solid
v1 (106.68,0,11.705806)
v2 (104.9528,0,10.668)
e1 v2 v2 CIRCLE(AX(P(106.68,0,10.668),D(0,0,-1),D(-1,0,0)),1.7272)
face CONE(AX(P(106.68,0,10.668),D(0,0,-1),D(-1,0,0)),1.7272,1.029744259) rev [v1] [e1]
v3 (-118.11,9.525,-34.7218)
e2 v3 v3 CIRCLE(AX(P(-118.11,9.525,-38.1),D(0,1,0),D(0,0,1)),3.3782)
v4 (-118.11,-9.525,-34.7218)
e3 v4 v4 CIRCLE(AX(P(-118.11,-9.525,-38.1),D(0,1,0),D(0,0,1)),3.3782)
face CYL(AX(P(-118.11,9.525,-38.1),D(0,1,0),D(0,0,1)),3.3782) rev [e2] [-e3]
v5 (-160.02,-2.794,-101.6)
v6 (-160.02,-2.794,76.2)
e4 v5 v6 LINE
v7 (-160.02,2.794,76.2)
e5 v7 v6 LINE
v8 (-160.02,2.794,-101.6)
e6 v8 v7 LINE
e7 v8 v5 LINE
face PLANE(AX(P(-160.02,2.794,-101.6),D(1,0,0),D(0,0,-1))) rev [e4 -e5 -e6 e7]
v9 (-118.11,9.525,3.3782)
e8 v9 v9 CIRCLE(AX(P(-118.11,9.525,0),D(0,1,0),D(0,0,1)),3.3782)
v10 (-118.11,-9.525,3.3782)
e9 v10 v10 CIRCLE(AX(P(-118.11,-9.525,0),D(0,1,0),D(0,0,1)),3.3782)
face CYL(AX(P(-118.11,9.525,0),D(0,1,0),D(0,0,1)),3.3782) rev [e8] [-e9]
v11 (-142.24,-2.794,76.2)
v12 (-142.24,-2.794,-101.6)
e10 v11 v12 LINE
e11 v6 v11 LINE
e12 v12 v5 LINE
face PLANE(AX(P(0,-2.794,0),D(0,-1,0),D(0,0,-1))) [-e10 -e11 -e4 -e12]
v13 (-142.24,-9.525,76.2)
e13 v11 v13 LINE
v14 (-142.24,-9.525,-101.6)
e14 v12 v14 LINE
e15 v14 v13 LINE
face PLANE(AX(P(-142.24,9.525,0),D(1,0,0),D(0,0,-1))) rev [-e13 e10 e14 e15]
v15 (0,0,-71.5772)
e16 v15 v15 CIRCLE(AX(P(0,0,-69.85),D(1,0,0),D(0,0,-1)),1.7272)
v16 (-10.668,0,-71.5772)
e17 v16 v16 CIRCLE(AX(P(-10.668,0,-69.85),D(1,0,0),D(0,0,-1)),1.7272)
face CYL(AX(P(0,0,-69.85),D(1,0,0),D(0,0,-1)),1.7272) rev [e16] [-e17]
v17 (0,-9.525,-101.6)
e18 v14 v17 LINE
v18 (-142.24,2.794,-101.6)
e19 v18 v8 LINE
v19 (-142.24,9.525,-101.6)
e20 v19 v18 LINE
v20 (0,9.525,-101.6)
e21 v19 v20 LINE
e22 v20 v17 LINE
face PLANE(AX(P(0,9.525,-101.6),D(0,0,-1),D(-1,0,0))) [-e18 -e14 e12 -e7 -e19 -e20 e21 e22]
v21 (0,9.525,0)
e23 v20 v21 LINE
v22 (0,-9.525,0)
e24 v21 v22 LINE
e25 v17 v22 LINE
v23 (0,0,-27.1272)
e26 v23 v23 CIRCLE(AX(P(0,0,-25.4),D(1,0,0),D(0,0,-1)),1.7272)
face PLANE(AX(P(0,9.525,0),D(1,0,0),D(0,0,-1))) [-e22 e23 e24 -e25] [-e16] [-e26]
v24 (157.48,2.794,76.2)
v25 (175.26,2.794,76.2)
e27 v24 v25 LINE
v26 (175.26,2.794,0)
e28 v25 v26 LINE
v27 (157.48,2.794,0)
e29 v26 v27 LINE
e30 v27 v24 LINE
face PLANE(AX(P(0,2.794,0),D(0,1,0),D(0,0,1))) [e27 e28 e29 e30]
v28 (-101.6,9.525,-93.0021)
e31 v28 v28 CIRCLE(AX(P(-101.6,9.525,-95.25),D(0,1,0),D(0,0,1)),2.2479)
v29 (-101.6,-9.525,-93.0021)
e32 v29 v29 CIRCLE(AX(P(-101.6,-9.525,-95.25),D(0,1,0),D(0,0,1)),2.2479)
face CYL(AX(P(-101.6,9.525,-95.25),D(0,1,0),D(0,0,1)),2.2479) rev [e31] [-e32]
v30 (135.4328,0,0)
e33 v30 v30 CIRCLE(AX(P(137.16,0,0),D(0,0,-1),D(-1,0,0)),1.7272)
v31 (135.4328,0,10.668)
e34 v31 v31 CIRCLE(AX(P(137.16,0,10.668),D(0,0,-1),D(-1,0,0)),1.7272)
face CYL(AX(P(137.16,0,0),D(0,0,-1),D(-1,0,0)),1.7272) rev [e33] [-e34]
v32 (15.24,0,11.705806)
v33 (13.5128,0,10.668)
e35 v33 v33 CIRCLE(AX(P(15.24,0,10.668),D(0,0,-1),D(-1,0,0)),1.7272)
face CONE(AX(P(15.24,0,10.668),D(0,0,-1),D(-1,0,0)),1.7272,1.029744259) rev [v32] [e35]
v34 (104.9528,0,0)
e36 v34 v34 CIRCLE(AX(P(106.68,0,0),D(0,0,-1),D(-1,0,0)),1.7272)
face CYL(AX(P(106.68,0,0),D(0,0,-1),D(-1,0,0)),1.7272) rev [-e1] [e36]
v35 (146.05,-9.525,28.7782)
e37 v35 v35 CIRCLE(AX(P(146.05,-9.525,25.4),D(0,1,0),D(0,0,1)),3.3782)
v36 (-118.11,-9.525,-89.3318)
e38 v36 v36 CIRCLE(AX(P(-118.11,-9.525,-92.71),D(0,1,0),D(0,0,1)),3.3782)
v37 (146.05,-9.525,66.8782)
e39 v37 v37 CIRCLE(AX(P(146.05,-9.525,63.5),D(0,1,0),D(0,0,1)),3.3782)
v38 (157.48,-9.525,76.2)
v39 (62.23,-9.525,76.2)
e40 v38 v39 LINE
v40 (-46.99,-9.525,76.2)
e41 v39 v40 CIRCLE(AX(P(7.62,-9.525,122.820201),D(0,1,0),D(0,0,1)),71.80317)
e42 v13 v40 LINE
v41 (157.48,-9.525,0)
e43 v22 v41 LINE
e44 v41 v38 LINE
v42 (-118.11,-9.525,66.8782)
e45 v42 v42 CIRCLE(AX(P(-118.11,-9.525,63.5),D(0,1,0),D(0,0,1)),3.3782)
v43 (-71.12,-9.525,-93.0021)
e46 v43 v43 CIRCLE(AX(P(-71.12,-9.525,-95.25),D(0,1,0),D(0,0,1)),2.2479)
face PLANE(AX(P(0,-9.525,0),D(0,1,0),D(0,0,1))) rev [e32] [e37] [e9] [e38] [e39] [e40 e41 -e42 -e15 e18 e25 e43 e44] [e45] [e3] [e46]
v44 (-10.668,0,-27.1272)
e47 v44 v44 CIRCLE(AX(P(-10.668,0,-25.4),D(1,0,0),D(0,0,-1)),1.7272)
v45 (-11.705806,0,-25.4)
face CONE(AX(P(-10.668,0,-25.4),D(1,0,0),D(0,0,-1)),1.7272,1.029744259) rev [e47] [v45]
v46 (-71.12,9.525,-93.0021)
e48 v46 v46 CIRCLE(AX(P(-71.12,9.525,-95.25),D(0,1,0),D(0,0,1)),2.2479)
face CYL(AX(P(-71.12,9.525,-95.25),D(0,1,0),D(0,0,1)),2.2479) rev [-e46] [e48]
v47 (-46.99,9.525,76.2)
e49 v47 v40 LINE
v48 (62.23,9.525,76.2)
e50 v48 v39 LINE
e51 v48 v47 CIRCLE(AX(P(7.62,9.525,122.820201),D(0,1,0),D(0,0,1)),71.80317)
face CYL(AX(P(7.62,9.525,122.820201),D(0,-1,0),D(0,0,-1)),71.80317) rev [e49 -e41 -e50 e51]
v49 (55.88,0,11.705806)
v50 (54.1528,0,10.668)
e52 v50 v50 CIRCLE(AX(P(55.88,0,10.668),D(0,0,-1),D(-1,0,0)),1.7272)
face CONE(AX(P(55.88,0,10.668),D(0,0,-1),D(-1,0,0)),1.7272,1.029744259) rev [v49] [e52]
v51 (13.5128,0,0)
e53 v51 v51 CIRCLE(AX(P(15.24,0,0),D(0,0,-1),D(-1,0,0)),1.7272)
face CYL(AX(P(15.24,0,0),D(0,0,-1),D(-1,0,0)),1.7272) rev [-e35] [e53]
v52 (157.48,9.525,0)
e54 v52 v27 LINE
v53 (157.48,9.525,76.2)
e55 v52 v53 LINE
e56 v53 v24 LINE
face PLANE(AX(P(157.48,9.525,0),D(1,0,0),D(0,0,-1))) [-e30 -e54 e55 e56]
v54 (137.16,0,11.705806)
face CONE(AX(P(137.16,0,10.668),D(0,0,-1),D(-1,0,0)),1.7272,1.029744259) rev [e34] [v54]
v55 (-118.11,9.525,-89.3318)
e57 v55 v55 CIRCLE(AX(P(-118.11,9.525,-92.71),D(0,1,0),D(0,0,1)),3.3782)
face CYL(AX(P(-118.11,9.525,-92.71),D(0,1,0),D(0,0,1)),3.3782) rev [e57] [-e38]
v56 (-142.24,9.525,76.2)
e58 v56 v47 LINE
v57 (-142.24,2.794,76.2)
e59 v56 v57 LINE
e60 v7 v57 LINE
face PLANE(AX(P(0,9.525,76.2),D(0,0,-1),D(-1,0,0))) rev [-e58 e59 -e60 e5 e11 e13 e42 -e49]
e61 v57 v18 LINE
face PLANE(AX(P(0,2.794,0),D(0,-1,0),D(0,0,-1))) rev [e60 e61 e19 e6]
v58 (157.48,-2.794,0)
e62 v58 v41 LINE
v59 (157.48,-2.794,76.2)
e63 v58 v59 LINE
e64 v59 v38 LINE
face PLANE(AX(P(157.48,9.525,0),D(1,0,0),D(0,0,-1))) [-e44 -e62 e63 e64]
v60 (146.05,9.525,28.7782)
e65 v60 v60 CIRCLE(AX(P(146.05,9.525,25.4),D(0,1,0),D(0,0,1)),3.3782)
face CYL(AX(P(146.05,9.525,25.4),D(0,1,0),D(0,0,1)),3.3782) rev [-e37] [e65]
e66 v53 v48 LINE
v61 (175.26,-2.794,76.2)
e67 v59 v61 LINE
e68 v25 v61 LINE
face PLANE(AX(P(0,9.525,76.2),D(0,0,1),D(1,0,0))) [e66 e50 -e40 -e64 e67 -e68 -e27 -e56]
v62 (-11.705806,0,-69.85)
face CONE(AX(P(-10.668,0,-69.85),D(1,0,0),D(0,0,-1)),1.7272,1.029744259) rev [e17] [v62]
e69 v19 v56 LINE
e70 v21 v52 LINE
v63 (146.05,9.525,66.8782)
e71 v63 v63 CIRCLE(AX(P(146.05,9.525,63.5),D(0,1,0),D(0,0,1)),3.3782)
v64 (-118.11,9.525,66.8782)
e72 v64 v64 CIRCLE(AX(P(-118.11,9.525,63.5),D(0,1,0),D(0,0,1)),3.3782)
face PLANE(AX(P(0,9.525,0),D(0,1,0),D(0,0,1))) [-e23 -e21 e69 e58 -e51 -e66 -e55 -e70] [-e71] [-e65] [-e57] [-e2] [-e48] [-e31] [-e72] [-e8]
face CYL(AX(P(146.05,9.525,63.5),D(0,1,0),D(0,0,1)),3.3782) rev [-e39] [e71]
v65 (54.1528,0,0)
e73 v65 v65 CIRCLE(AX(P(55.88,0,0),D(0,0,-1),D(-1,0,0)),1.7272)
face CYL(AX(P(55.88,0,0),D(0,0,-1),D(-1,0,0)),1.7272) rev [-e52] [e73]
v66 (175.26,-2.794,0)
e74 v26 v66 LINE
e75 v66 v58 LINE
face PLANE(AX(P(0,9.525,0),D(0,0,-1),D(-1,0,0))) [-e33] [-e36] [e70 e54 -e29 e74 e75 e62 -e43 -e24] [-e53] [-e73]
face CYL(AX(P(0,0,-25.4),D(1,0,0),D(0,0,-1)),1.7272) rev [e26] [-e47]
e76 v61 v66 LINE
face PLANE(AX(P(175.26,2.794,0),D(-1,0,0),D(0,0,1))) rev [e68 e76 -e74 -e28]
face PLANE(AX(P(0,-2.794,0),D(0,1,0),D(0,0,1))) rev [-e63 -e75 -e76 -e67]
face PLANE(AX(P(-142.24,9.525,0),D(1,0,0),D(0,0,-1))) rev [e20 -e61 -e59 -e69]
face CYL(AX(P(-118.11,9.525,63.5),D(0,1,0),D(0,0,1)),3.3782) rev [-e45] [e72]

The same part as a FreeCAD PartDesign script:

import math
import FreeCAD as App
import Part
import Sketcher
Q = App.Units.Quantity


def add_polygon(sketch, points):
    """Adds a closed chain of lines whose ends are joined by coincident constraints."""
    first, n = sketch.GeometryCount, len(points)
    for a, b in zip(points, points[1:] + points[:1]):
        sketch.addGeometry(Part.LineSegment(App.Vector(*a, 0), App.Vector(*b, 0)), False)
    for i in range(n):
        sketch.addConstraint(Sketcher.Constraint("Coincident", first + i, 2, first + (i + 1) % n, 1))

doc = App.newDocument("Part")
body = doc.addObject("PartDesign::Body", "Body")

sketch1 = body.newObject("Sketcher::SketchObject", "Sketch")
sketch1.AttachmentSupport = (doc.getObject("XZ_Plane"), [""])
sketch1.MapMode = "FlatFace"
sketch1.addGeometry(Part.LineSegment(App.Vector(0, -101.6, 0), App.Vector(-142.24, -101.6, 0)), False)
sketch1.addGeometry(Part.LineSegment(App.Vector(-142.24, -101.6, 0), App.Vector(-142.24, 76.2, 0)), False)
sketch1.addGeometry(Part.LineSegment(App.Vector(-142.24, 76.2, 0), App.Vector(-46.99, 76.2, 0)), False)
sketch1.addGeometry(Part.ArcOfCircle(Part.Circle(App.Vector(7.62, 122.820201, 0), App.Vector(0, 0, 1), 71.80317), math.radians(-139.51283), math.radians(-40.48717)), False)
sketch1.addGeometry(Part.LineSegment(App.Vector(62.23, 76.2, 0), App.Vector(157.48, 76.2, 0)), False)
sketch1.addGeometry(Part.LineSegment(App.Vector(157.48, 76.2, 0), App.Vector(157.48, 0, 0)), False)
sketch1.addGeometry(Part.LineSegment(App.Vector(157.48, 0, 0), App.Vector(0, 0, 0)), False)
sketch1.addGeometry(Part.LineSegment(App.Vector(0, 0, 0), App.Vector(0, -101.6, 0)), False)
sketch1.addConstraint(Sketcher.Constraint("Coincident", 0, 2, 1, 1))
sketch1.addConstraint(Sketcher.Constraint("Coincident", 1, 2, 2, 1))
sketch1.addConstraint(Sketcher.Constraint("Coincident", 2, 2, 3, 1))
sketch1.addConstraint(Sketcher.Constraint("Coincident", 3, 2, 4, 1))
sketch1.addConstraint(Sketcher.Constraint("Coincident", 4, 2, 5, 1))
sketch1.addConstraint(Sketcher.Constraint("Coincident", 5, 2, 6, 1))
sketch1.addConstraint(Sketcher.Constraint("Coincident", 6, 2, 7, 1))
sketch1.addConstraint(Sketcher.Constraint("Coincident", 7, 2, 0, 1))
sketch1.addConstraint(Sketcher.Constraint("Horizontal", 0))
sketch1.addConstraint(Sketcher.Constraint("Vertical", 1))
sketch1.addConstraint(Sketcher.Constraint("Horizontal", 2))
sketch1.addConstraint(Sketcher.Constraint("Horizontal", 4))
sketch1.addConstraint(Sketcher.Constraint("Vertical", 5))
sketch1.addConstraint(Sketcher.Constraint("Horizontal", 6))
sketch1.addConstraint(Sketcher.Constraint("Vertical", 7))
sketch1.addConstraint(Sketcher.Constraint("Coincident", 6, 2, -1, 1))
sketch1.addConstraint(Sketcher.Constraint("Horizontal", 2, 2, 3, 2))
sketch1.addConstraint(Sketcher.Constraint("Equal", 2, 4))
sketch1.addConstraint(Sketcher.Constraint("DistanceY", 1, 1, 1, 2, Q("7 in")))
sketch1.addConstraint(Sketcher.Constraint("DistanceY", 5, 2, 5, 1, Q("3 in")))
sketch1.addConstraint(Sketcher.Constraint("DistanceX", 0, 2, 0, 1, Q("5.6 in")))
sketch1.addConstraint(Sketcher.Constraint("DistanceX", 6, 2, 6, 1, Q("6.2 in")))
sketch1.addConstraint(Sketcher.Constraint("DistanceX", 2, 1, 2, 2, Q("3.75 in")))
sketch1.addConstraint(Sketcher.Constraint("Radius", 3, 71.80317))
pad1 = body.newObject("PartDesign::Pad", "Pad")
pad1.Profile = sketch1
pad1.Length = Q("0.75 in")
pad1.Midplane = True

sketch2 = body.newObject("Sketcher::SketchObject", "Sketch001")
sketch2.AttachmentSupport = (doc.getObject("XZ_Plane"), [""])
sketch2.MapMode = "FlatFace"
add_polygon(sketch2, [(-160.02, -101.6), (-160.02, 76.2), (-142.24, 76.2), (-142.24, -101.6)])
add_polygon(sketch2, [(157.48, 0), (157.48, 76.2), (175.26, 76.2), (175.26, 0)])
sketch2.addConstraint(Sketcher.Constraint("Vertical", 0))
sketch2.addConstraint(Sketcher.Constraint("Horizontal", 1))
sketch2.addConstraint(Sketcher.Constraint("Vertical", 2))
sketch2.addConstraint(Sketcher.Constraint("Horizontal", 3))
sketch2.addConstraint(Sketcher.Constraint("Vertical", 4))
sketch2.addConstraint(Sketcher.Constraint("Horizontal", 5))
sketch2.addConstraint(Sketcher.Constraint("Vertical", 6))
sketch2.addConstraint(Sketcher.Constraint("Horizontal", 7))
sketch2.addConstraint(Sketcher.Constraint("PointOnObject", 6, 2, -1))
sketch2.addConstraint(Sketcher.Constraint("Horizontal", 1, 2, 4, 2))
sketch2.addConstraint(Sketcher.Constraint("Equal", 3, 5))
sketch2.addConstraint(Sketcher.Constraint("DistanceY", 0, 1, 0, 2, Q("7 in")))
sketch2.addConstraint(Sketcher.Constraint("DistanceY", 4, 1, 4, 2, Q("3 in")))
sketch2.addConstraint(Sketcher.Constraint("DistanceX", 1, 1, 1, 2, Q("0.7 in")))
sketch2.addConstraint(Sketcher.Constraint("DistanceX", 0, 2, -1, 1, Q("6.3 in")))
sketch2.addConstraint(Sketcher.Constraint("DistanceX", -1, 1, 4, 2, Q("6.2 in")))
pad2 = body.newObject("PartDesign::Pad", "Pad001")
pad2.Profile = sketch2
pad2.Length = Q("0.22 in")
pad2.Midplane = True

sketch3 = body.newObject("Sketcher::SketchObject", "Sketch002")
sketch3.AttachmentSupport = (doc.getObject("XZ_Plane"), [""])
sketch3.MapMode = "FlatFace"
sketch3.AttachmentOffset = App.Placement(App.Vector(0, 0, -0.375 * 25.4), App.Rotation())
sketch3.addGeometry(Part.Circle(App.Vector(-118.11, -92.71, 0), App.Vector(0, 0, 1), 3.3782), False)
sketch3.addGeometry(Part.Circle(App.Vector(-118.11, -38.1, 0), App.Vector(0, 0, 1), 3.3782), False)
sketch3.addGeometry(Part.Circle(App.Vector(-118.11, 0, 0), App.Vector(0, 0, 1), 3.3782), False)
sketch3.addGeometry(Part.Circle(App.Vector(-118.11, 63.5, 0), App.Vector(0, 0, 1), 3.3782), False)
sketch3.addConstraint(Sketcher.Constraint("Equal", 0, 1))
sketch3.addConstraint(Sketcher.Constraint("Equal", 1, 2))
sketch3.addConstraint(Sketcher.Constraint("Equal", 2, 3))
sketch3.addConstraint(Sketcher.Constraint("PointOnObject", 2, 3, -1))
sketch3.addConstraint(Sketcher.Constraint("Vertical", 0, 3, 1, 3))
sketch3.addConstraint(Sketcher.Constraint("Vertical", 1, 3, 2, 3))
sketch3.addConstraint(Sketcher.Constraint("Vertical", 2, 3, 3, 3))
sketch3.addConstraint(Sketcher.Constraint("Diameter", 0, Q("0.266 in")))
sketch3.addConstraint(Sketcher.Constraint("DistanceY", 1, 3, 3, 3, Q("4 in")))
sketch3.addConstraint(Sketcher.Constraint("DistanceY", 1, 3, -1, 1, Q("1.5 in")))
sketch3.addConstraint(Sketcher.Constraint("DistanceX", 0, 3, -1, 1, Q("4.65 in")))
sketch3.addConstraint(Sketcher.Constraint("DistanceY", 0, 3, -1, 1, Q("3.65 in")))
doc.recompute()
hole = body.newObject("PartDesign::Hole", "Hole")
hole.Profile = sketch3
hole.ThreadType = "None"
hole.Diameter = Q("0.266 in")
hole.DepthType = "ThroughAll"
hole.Reversed = True

sketch4 = body.newObject("Sketcher::SketchObject", "Sketch003")
sketch4.AttachmentSupport = (doc.getObject("XZ_Plane"), [""])
sketch4.MapMode = "FlatFace"
sketch4.AttachmentOffset = App.Placement(App.Vector(0, 0, -0.375 * 25.4), App.Rotation())
sketch4.addGeometry(Part.Circle(App.Vector(-101.6, -95.25, 0), App.Vector(0, 0, 1), 2.2479), False)
sketch4.addGeometry(Part.Circle(App.Vector(-71.12, -95.25, 0), App.Vector(0, 0, 1), 2.2479), False)
sketch4.addConstraint(Sketcher.Constraint("Equal", 0, 1))
sketch4.addConstraint(Sketcher.Constraint("Horizontal", 0, 3, 1, 3))
sketch4.addConstraint(Sketcher.Constraint("Diameter", 0, Q("0.177 in")))
sketch4.addConstraint(Sketcher.Constraint("DistanceX", 0, 3, -1, 1, Q("4 in")))
sketch4.addConstraint(Sketcher.Constraint("DistanceX", 1, 3, -1, 1, Q("2.8 in")))
sketch4.addConstraint(Sketcher.Constraint("DistanceY", 0, 3, -1, 1, Q("3.75 in")))
doc.recompute()
hole2 = body.newObject("PartDesign::Hole", "Hole001")
hole2.Profile = sketch4
hole2.ThreadType = "None"
hole2.Diameter = Q("0.177 in")
hole2.DepthType = "ThroughAll"
hole2.Reversed = True

sketch5 = body.newObject("Sketcher::SketchObject", "Sketch004")
sketch5.AttachmentSupport = (doc.getObject("XZ_Plane"), [""])
sketch5.MapMode = "FlatFace"
sketch5.AttachmentOffset = App.Placement(App.Vector(0, 0, -0.375 * 25.4), App.Rotation())
sketch5.addGeometry(Part.Circle(App.Vector(146.05, 25.4, 0), App.Vector(0, 0, 1), 3.3782), False)
sketch5.addGeometry(Part.Circle(App.Vector(146.05, 63.5, 0), App.Vector(0, 0, 1), 3.3782), False)
sketch5.addConstraint(Sketcher.Constraint("Equal", 0, 1))
sketch5.addConstraint(Sketcher.Constraint("Vertical", 0, 3, 1, 3))
sketch5.addConstraint(Sketcher.Constraint("Diameter", 0, Q("0.266 in")))
sketch5.addConstraint(Sketcher.Constraint("DistanceY", -1, 1, 0, 3, Q("1 in")))
sketch5.addConstraint(Sketcher.Constraint("DistanceY", -1, 1, 1, 3, Q("2.5 in")))
sketch5.addConstraint(Sketcher.Constraint("DistanceX", -1, 1, 0, 3, Q("5.75 in")))
doc.recompute()
hole3 = body.newObject("PartDesign::Hole", "Hole002")
hole3.Profile = sketch5
hole3.ThreadType = "None"
hole3.Diameter = Q("0.266 in")
hole3.DepthType = "ThroughAll"
hole3.Reversed = True

sketch6 = body.newObject("Sketcher::SketchObject", "Sketch005")
sketch6.AttachmentSupport = (doc.getObject("XY_Plane"), [""])
sketch6.MapMode = "FlatFace"
sketch6.addGeometry(Part.Circle(App.Vector(137.16, 0, 0), App.Vector(0, 0, 1), 1.7272), False)
sketch6.addGeometry(Part.Circle(App.Vector(106.68, 0, 0), App.Vector(0, 0, 1), 1.7272), False)
sketch6.addGeometry(Part.Circle(App.Vector(55.88, 0, 0), App.Vector(0, 0, 1), 1.7272), False)
sketch6.addGeometry(Part.Circle(App.Vector(15.24, 0, 0), App.Vector(0, 0, 1), 1.7272), False)
sketch6.addConstraint(Sketcher.Constraint("Equal", 0, 1))
sketch6.addConstraint(Sketcher.Constraint("Equal", 1, 2))
sketch6.addConstraint(Sketcher.Constraint("Equal", 2, 3))
sketch6.addConstraint(Sketcher.Constraint("PointOnObject", 0, 3, -1))
sketch6.addConstraint(Sketcher.Constraint("PointOnObject", 1, 3, -1))
sketch6.addConstraint(Sketcher.Constraint("PointOnObject", 2, 3, -1))
sketch6.addConstraint(Sketcher.Constraint("PointOnObject", 3, 3, -1))
sketch6.addConstraint(Sketcher.Constraint("Diameter", 0, Q("0.136 in")))
sketch6.addConstraint(Sketcher.Constraint("DistanceX", 2, 3, 1, 3, Q("2 in")))
sketch6.addConstraint(Sketcher.Constraint("DistanceX", -1, 1, 0, 3, Q("5.4 in")))
sketch6.addConstraint(Sketcher.Constraint("DistanceX", -1, 1, 1, 3, Q("4.2 in")))
sketch6.addConstraint(Sketcher.Constraint("DistanceX", -1, 1, 3, 3, Q("0.6 in")))
doc.recompute()
hole4 = body.newObject("PartDesign::Hole", "Hole003")
hole4.Profile = sketch6
hole4.ThreadType = "None"
hole4.Diameter = Q("0.136 in")
hole4.DepthType = "Dimension"
hole4.Depth = Q("0.42 in")
hole4.DrillPoint = "Angled"
hole4.DrillPointAngle = 118
hole4.Reversed = True

sketch7 = body.newObject("Sketcher::SketchObject", "Sketch006")
sketch7.AttachmentSupport = (doc.getObject("YZ_Plane"), [""])
sketch7.MapMode = "FlatFace"
sketch7.addGeometry(Part.Circle(App.Vector(0, -69.85, 0), App.Vector(0, 0, 1), 1.7272), False)
sketch7.addGeometry(Part.Circle(App.Vector(0, -25.4, 0), App.Vector(0, 0, 1), 1.7272), False)
sketch7.addConstraint(Sketcher.Constraint("Equal", 0, 1))
sketch7.addConstraint(Sketcher.Constraint("PointOnObject", 0, 3, -2))
sketch7.addConstraint(Sketcher.Constraint("PointOnObject", 1, 3, -2))
sketch7.addConstraint(Sketcher.Constraint("Diameter", 0, Q("0.136 in")))
sketch7.addConstraint(Sketcher.Constraint("DistanceY", 1, 3, -1, 1, Q("1 in")))
sketch7.addConstraint(Sketcher.Constraint("DistanceY", 0, 3, -1, 1, Q("2.75 in")))
doc.recompute()
hole5 = body.newObject("PartDesign::Hole", "Hole004")
hole5.Profile = sketch7
hole5.ThreadType = "None"
hole5.Diameter = Q("0.136 in")
hole5.DepthType = "Dimension"
hole5.Depth = Q("0.42 in")
hole5.DrillPoint = "Angled"
hole5.DrillPointAngle = 118

doc.recompute()
